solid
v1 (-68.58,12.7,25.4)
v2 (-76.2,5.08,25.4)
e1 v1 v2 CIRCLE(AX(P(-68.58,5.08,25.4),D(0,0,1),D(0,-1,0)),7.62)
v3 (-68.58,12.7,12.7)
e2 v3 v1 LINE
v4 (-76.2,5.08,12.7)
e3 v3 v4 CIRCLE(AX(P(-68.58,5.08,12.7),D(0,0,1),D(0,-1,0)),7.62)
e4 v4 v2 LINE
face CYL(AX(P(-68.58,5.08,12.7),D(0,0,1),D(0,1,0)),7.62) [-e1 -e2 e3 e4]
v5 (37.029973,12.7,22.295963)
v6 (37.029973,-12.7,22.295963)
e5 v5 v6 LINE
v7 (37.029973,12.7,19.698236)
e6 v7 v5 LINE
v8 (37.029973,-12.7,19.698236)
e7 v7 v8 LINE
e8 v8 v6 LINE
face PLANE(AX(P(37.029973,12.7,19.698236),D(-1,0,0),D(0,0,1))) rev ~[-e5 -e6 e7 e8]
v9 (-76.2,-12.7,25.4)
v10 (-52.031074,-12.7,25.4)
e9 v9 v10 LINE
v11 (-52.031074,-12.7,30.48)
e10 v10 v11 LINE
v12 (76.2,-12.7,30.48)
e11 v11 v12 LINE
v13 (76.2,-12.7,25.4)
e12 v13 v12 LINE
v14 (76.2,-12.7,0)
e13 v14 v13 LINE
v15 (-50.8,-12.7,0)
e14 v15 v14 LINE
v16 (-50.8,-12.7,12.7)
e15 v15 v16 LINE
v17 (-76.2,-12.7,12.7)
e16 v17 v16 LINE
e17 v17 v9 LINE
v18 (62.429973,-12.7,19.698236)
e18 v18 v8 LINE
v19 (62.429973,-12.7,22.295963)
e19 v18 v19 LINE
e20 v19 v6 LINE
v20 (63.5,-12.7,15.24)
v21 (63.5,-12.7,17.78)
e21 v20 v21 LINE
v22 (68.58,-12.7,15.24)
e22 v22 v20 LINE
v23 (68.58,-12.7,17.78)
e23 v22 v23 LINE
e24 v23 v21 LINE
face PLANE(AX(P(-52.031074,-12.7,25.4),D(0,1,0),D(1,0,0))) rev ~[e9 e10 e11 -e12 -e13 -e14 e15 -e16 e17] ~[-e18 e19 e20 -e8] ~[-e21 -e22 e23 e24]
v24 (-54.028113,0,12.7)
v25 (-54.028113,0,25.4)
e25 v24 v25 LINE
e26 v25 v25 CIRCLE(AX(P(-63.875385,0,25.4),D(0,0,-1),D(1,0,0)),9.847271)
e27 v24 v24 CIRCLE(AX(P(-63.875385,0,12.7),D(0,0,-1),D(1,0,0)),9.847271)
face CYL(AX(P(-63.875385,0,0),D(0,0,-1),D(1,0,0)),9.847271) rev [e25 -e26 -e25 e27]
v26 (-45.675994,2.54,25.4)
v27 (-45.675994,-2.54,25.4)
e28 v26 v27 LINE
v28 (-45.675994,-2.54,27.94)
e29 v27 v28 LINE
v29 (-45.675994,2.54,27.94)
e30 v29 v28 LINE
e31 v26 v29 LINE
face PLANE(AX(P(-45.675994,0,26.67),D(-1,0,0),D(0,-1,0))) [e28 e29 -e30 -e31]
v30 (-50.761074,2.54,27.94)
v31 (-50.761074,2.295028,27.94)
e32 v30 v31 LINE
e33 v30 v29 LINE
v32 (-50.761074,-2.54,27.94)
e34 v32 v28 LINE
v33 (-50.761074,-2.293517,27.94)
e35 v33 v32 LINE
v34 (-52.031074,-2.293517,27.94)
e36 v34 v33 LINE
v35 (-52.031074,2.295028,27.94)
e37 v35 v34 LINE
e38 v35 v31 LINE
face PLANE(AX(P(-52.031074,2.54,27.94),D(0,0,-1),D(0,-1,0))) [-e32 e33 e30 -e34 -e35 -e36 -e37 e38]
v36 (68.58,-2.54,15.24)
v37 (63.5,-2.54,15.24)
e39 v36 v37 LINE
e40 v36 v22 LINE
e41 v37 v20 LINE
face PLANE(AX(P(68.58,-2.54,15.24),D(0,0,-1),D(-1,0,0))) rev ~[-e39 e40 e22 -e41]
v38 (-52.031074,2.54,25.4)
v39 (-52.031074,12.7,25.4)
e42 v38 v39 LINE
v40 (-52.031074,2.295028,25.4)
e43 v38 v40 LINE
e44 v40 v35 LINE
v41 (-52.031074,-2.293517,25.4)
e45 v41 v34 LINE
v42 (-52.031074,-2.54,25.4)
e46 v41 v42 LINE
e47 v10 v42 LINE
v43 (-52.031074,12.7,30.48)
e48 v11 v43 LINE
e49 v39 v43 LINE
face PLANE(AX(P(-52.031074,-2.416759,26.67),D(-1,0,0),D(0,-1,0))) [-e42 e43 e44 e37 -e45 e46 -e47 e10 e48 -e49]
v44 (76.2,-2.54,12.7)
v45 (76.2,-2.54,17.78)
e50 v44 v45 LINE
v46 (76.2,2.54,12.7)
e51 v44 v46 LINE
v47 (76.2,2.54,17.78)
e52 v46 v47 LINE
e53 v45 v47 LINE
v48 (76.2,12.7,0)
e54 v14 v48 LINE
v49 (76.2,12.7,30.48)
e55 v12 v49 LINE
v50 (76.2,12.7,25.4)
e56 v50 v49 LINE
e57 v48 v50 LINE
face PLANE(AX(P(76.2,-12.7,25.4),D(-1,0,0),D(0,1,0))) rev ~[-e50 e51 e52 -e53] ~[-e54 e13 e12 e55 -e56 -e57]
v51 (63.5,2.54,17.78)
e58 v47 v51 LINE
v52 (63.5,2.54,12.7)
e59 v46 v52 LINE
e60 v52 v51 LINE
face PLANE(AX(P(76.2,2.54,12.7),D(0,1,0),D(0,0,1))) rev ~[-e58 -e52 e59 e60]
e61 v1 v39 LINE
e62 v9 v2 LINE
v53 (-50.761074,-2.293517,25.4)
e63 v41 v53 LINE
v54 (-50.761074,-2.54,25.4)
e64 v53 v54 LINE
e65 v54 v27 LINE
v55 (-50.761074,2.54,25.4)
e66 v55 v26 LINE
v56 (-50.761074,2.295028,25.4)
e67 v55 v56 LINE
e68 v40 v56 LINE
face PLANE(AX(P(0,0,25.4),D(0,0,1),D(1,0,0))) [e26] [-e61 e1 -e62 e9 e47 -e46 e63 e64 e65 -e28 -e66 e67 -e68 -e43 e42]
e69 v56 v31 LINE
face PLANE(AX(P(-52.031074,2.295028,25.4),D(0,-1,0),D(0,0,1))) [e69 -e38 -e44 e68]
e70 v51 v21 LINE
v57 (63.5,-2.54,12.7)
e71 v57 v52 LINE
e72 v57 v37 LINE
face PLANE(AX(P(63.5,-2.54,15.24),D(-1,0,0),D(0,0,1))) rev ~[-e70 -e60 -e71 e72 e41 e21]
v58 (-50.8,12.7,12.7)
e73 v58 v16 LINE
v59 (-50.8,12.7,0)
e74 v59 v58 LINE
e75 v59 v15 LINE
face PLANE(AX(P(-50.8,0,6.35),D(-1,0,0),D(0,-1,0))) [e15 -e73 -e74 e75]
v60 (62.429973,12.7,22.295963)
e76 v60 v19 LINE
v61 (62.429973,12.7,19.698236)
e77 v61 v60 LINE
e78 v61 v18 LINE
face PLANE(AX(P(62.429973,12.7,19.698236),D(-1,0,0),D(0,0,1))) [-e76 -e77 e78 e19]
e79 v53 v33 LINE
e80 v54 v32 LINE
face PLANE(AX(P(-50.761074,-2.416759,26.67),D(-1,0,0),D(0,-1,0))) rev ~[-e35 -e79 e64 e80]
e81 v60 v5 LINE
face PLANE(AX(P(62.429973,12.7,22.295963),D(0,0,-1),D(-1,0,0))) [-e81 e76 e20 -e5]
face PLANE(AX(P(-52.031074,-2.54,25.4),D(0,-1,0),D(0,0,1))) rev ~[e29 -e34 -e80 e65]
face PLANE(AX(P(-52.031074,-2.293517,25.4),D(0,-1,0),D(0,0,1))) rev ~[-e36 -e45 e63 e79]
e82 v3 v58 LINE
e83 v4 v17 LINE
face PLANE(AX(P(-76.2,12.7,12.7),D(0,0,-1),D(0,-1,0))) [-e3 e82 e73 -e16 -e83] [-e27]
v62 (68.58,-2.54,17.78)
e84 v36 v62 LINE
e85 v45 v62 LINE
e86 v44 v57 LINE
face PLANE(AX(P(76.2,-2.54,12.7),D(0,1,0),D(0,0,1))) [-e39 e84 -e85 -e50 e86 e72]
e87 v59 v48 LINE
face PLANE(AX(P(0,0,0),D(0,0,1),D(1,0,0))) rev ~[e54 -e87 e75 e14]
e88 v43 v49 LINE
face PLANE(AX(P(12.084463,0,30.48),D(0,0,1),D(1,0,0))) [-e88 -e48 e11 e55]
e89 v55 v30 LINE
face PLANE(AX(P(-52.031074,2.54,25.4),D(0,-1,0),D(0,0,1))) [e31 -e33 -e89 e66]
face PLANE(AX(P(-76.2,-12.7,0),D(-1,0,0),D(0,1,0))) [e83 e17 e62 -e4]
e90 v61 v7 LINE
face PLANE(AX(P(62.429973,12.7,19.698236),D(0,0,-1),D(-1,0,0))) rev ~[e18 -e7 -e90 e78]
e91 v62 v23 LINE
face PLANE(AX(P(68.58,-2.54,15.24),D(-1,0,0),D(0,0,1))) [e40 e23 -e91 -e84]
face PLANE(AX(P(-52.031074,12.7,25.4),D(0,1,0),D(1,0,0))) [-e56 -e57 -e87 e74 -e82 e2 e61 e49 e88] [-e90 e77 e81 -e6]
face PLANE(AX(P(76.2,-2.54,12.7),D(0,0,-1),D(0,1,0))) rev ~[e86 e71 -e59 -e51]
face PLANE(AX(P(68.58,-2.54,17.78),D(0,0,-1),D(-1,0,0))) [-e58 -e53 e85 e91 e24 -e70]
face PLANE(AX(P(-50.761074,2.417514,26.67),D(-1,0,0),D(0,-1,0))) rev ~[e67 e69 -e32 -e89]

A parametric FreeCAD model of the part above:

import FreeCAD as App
import Part
import Sketcher
Q = App.Units.Quantity


def edges_at(feature, points):
    """Names of the edges that pass closest to the given points."""
    edges = feature.Shape.Edges
    near = lambda p: min(range(len(edges)), key=lambda i: edges[i].distToShape(Part.Vertex(*p))[0])
    return sorted({f"Edge{near(p) + 1}" for p in points})

doc = App.newDocument("Part")
body = doc.addObject("PartDesign::Body", "Body")

sketch1 = doc.addObject("Sketcher::SketchObject", "Sketch")
body.addObject(sketch1)
sketch1.AttachmentSupport = (doc.XY_Plane, [""])
sketch1.MapMode = "FlatFace"
sketch1.addGeometry(Part.LineSegment(App.Vector(-76, 13, 0), App.Vector(-76, -13, 0)), False)
sketch1.addGeometry(Part.LineSegment(App.Vector(-76, -13, 0), App.Vector(76, -13, 0)), False)
sketch1.addGeometry(Part.LineSegment(App.Vector(76, -13, 0), App.Vector(76, 13, 0)), False)
sketch1.addGeometry(Part.LineSegment(App.Vector(76, 13, 0), App.Vector(-76, 13, 0)), False)
sketch1.addConstraint(Sketcher.Constraint("Coincident", 0, 2, 1, 1))
sketch1.addConstraint(Sketcher.Constraint("Coincident", 1, 2, 2, 1))
sketch1.addConstraint(Sketcher.Constraint("Coincident", 2, 2, 3, 1))
sketch1.addConstraint(Sketcher.Constraint("Coincident", 3, 2, 0, 1))
sketch1.addConstraint(Sketcher.Constraint("Vertical", 0))
sketch1.addConstraint(Sketcher.Constraint("Horizontal", 1))
sketch1.addConstraint(Sketcher.Constraint("Vertical", 2))
sketch1.addConstraint(Sketcher.Constraint("Horizontal", 3))
sketch1.addConstraint(Sketcher.Constraint("Symmetric", 0, 2, 2, 2, -1, 1))
sketch1.addConstraint(Sketcher.Constraint("DistanceX", 1, 1, 1, 2, Q("6 in")))
sketch1.addConstraint(Sketcher.Constraint("DistanceY", 0, 2, 0, 1, Q("1 in")))
pad1 = doc.addObject("PartDesign::Pad", "Pad")
body.addObject(pad1)
pad1.Profile = sketch1
pad1.Length = Q("1 in")

sketch2 = doc.addObject("Sketcher::SketchObject", "Sketch001")
body.addObject(sketch2)
sketch2.AttachmentSupport = (doc.XY_Plane, [""])
sketch2.MapMode = "FlatFace"
sketch2.addGeometry(Part.Circle(App.Vector(-64, 0, 0), App.Vector(0, 0, 1), 10), False)
sketch2.addConstraint(Sketcher.Constraint("PointOnObject", 0, 3, -1))
sketch2.addConstraint(Sketcher.Constraint("Diameter", 0, Q("19.694543 mm")))
sketch2.addConstraint(Sketcher.Constraint("DistanceX", 0, 3, -1, 1, Q("63.875385 mm")))
pocket1 = doc.addObject("PartDesign::Pocket", "Pocket")
body.addObject(pocket1)
pocket1.Profile = sketch2
pocket1.Type = "ThroughAll"
pocket1.Reversed = True

sketch3 = doc.addObject("Sketcher::SketchObject", "Sketch002")
body.addObject(sketch3)
sketch3.AttachmentSupport = (doc.YZ_Plane, [""])
sketch3.MapMode = "FlatFace"
sketch3.AttachmentOffset = App.Placement(App.Vector(0, 0, -3 * 25.4), App.Rotation())
sketch3.addGeometry(Part.LineSegment(App.Vector(13, 13, 0), App.Vector(13, 0, 0)), False)
sketch3.addGeometry(Part.LineSegment(App.Vector(13, 0, 0), App.Vector(-13, 0, 0)), False)
sketch3.addGeometry(Part.LineSegment(App.Vector(-13, 0, 0), App.Vector(-13, 13, 0)), False)
sketch3.addGeometry(Part.LineSegment(App.Vector(-13, 13, 0), App.Vector(13, 13, 0)), False)
sketch3.addConstraint(Sketcher.Constraint("Coincident", 0, 2, 1, 1))
sketch3.addConstraint(Sketcher.Constraint("Coincident", 1, 2, 2, 1))
sketch3.addConstraint(Sketcher.Constraint("Coincident", 2, 2, 3, 1))
sketch3.addConstraint(Sketcher.Constraint("Coincident", 3, 2, 0, 1))
sketch3.addConstraint(Sketcher.Constraint("Vertical", 0))
sketch3.addConstraint(Sketcher.Constraint("Horizontal", 1))
sketch3.addConstraint(Sketcher.Constraint("Vertical", 2))
sketch3.addConstraint(Sketcher.Constraint("Horizontal", 3))
sketch3.addConstraint(Sketcher.Constraint("Symmetric", 0, 2, 1, 2, -1, 1))
sketch3.addConstraint(Sketcher.Constraint("DistanceX", 1, 2, 1, 1, Q("1 in")))
sketch3.addConstraint(Sketcher.Constraint("DistanceY", 0, 2, 0, 1, Q("0.5 in")))
pocket2 = doc.addObject("PartDesign::Pocket", "Pocket001")
body.addObject(pocket2)
pocket2.Profile = sketch3
pocket2.Length = Q("1 in")
pocket2.Reversed = True

sketch4 = doc.addObject("Sketcher::SketchObject", "Sketch003")
body.addObject(sketch4)
sketch4.AttachmentSupport = (doc.XZ_Plane, [""])
sketch4.MapMode = "FlatFace"
sketch4.AttachmentOffset = App.Placement(App.Vector(0, 0, -0.5 * 25.4), App.Rotation())
sketch4.addGeometry(Part.LineSegment(App.Vector(62.4, 22.3, 0), App.Vector(62.4, 19.7, 0)), False)
sketch4.addGeometry(Part.LineSegment(App.Vector(62.4, 19.7, 0), App.Vector(37, 19.7, 0)), False)
sketch4.addGeometry(Part.LineSegment(App.Vector(37, 19.7, 0), App.Vector(37, 22.3, 0)), False)
sketch4.addGeometry(Part.LineSegment(App.Vector(37, 22.3, 0), App.Vector(62.4, 22.3, 0)), False)
sketch4.addConstraint(Sketcher.Constraint("Coincident", 0, 2, 1, 1))
sketch4.addConstraint(Sketcher.Constraint("Coincident", 1, 2, 2, 1))
sketch4.addConstraint(Sketcher.Constraint("Coincident", 2, 2, 3, 1))
sketch4.addConstraint(Sketcher.Constraint("Coincident", 3, 2, 0, 1))
sketch4.addConstraint(Sketcher.Constraint("Vertical", 0))
sketch4.addConstraint(Sketcher.Constraint("Horizontal", 1))
sketch4.addConstraint(Sketcher.Constraint("Vertical", 2))
sketch4.addConstraint(Sketcher.Constraint("Horizontal", 3))
sketch4.addConstraint(Sketcher.Constraint("DistanceX", 1, 2, 1, 1, Q("1 in")))
sketch4.addConstraint(Sketcher.Constraint("DistanceY", 0, 2, 0, 1, Q("2.597727 mm")))
sketch4.addConstraint(Sketcher.Constraint("DistanceX", -1, 1, 0, 2, Q("62.429973 mm")))
sketch4.addConstraint(Sketcher.Constraint("DistanceY", -1, 1, 0, 2, Q("19.698236 mm")))
pocket3 = doc.addObject("PartDesign::Pocket", "Pocket002")
body.addObject(pocket3)
pocket3.Profile = sketch4
pocket3.Length = Q("2.09 in")
pocket3.Reversed = True

sketch5 = doc.addObject("Sketcher::SketchObject", "Sketch004")
body.addObject(sketch5)
sketch5.AttachmentSupport = (doc.XY_Plane, [""])
sketch5.MapMode = "FlatFace"
sketch5.AttachmentOffset = App.Placement(App.Vector(0, 0, 1 * 25.4), App.Rotation())
sketch5.addGeometry(Part.LineSegment(App.Vector(-52, 13, 0), App.Vector(-52, -13, 0)), False)
sketch5.addGeometry(Part.LineSegment(App.Vector(-52, -13, 0), App.Vector(76, -13, 0)), False)
sketch5.addGeometry(Part.LineSegment(App.Vector(76, -13, 0), App.Vector(76, 13, 0)), False)
sketch5.addGeometry(Part.LineSegment(App.Vector(76, 13, 0), App.Vector(-52, 13, 0)), False)
sketch5.addConstraint(Sketcher.Constraint("Coincident", 0, 2, 1, 1))
sketch5.addConstraint(Sketcher.Constraint("Coincident", 1, 2, 2, 1))
sketch5.addConstraint(Sketcher.Constraint("Coincident", 2, 2, 3, 1))
sketch5.addConstraint(Sketcher.Constraint("Coincident", 3, 2, 0, 1))
sketch5.addConstraint(Sketcher.Constraint("Vertical", 0))
sketch5.addConstraint(Sketcher.Constraint("Horizontal", 1))
sketch5.addConstraint(Sketcher.Constraint("Vertical", 2))
sketch5.addConstraint(Sketcher.Constraint("Horizontal", 3))
sketch5.addConstraint(Sketcher.Constraint("DistanceY", 0, 2, 0, 1, Q("1 in")))
sketch5.addConstraint(Sketcher.Constraint("DistanceX", -1, 1, 1, 2, Q("3 in")))
sketch5.addConstraint(Sketcher.Constraint("DistanceY", 0, 2, -1, 1, Q("0.5 in")))
sketch5.addConstraint(Sketcher.Constraint("DistanceX", 1, 1, 1, 2, Q("128.231074 mm")))
pad2 = doc.addObject("PartDesign::Pad", "Pad001")
body.addObject(pad2)
pad2.Profile = sketch5
pad2.Length = Q("0.2 in")
doc.recompute()

fillet = doc.addObject("PartDesign::Fillet", "Fillet")
body.addObject(fillet)
fillet.Base = (pad2, edges_at(pad2, [(-76.2, 12.7, 19.05)]))
fillet.Radius = Q("0.3 in")

sketch6 = doc.addObject("Sketcher::SketchObject", "Sketch005")
body.addObject(sketch6)
sketch6.AttachmentSupport = (doc.YZ_Plane, [""])
sketch6.MapMode = "FlatFace"
sketch6.AttachmentOffset = App.Placement(App.Vector(0, 0, -52.031074), App.Rotation())
sketch6.addGeometry(Part.LineSegment(App.Vector(2.5, 27.9, 0), App.Vector(2.5, 25.4, 0)), False)
sketch6.addGeometry(Part.LineSegment(App.Vector(2.5, 25.4, 0), App.Vector(-2.5, 25.4, 0)), False)
sketch6.addGeometry(Part.LineSegment(App.Vector(-2.5, 25.4, 0), App.Vector(-2.5, 27.9, 0)), False)
sketch6.addGeometry(Part.LineSegment(App.Vector(-2.5, 27.9, 0), App.Vector(2.5, 27.9, 0)), False)
sketch6.addConstraint(Sketcher.Constraint("Coincident", 0, 2, 1, 1))
sketch6.addConstraint(Sketcher.Constraint("Coincident", 1, 2, 2, 1))
sketch6.addConstraint(Sketcher.Constraint("Coincident", 2, 2, 3, 1))
sketch6.addConstraint(Sketcher.Constraint("Coincident", 3, 2, 0, 1))
sketch6.addConstraint(Sketcher.Constraint("Vertical", 0))
sketch6.addConstraint(Sketcher.Constraint("Horizontal", 1))
sketch6.addConstraint(Sketcher.Constraint("Vertical", 2))
sketch6.addConstraint(Sketcher.Constraint("Horizontal", 3))
sketch6.addConstraint(Sketcher.Constraint("DistanceX", 1, 2, 1, 1, Q("0.2 in")))
sketch6.addConstraint(Sketcher.Constraint("DistanceY", 0, 2, 0, 1, Q("0.1 in")))
sketch6.addConstraint(Sketcher.Constraint("DistanceY", -1, 1, 0, 2, Q("1 in")))
sketch6.addConstraint(Sketcher.Constraint("DistanceX", -1, 1, 0, 2, Q("0.1 in")))
pocket4 = doc.addObject("PartDesign::Pocket", "Pocket003")
body.addObject(pocket4)
pocket4.Profile = sketch6
pocket4.Length = Q("0.2502 in")
pocket4.Reversed = True

sketch7 = doc.addObject("Sketcher::SketchObject", "Sketch006")
body.addObject(sketch7)
sketch7.AttachmentSupport = (doc.YZ_Plane, [""])
sketch7.MapMode = "FlatFace"
sketch7.AttachmentOffset = App.Placement(App.Vector(0, 0, -52.031074), App.Rotation())
sketch7.addGeometry(Part.LineSegment(App.Vector(2.54, 27.94, 0), App.Vector(2.54, 25.4, 0)), False)
sketch7.addGeometry(Part.LineSegment(App.Vector(2.54, 25.4, 0), App.Vector(2.3, 25.4, 0)), False)
sketch7.addGeometry(Part.LineSegment(App.Vector(2.3, 25.4, 0), App.Vector(2.3, 27.94, 0)), False)
sketch7.addGeometry(Part.LineSegment(App.Vector(2.3, 27.94, 0), App.Vector(2.54, 27.94, 0)), False)
sketch7.addConstraint(Sketcher.Constraint("Coincident", 0, 2, 1, 1))
sketch7.addConstraint(Sketcher.Constraint("Coincident", 1, 2, 2, 1))
sketch7.addConstraint(Sketcher.Constraint("Coincident", 2, 2, 3, 1))
sketch7.addConstraint(Sketcher.Constraint("Coincident", 3, 2, 0, 1))
sketch7.addConstraint(Sketcher.Constraint("Vertical", 0))
sketch7.addConstraint(Sketcher.Constraint("Horizontal", 1))
sketch7.addConstraint(Sketcher.Constraint("Vertical", 2))
sketch7.addConstraint(Sketcher.Constraint("Horizontal", 3))
sketch7.addConstraint(Sketcher.Constraint("DistanceY", 0, 2, 0, 1, Q("0.1 in")))
sketch7.addConstraint(Sketcher.Constraint("DistanceY", -1, 1, 0, 2, Q("1 in")))
sketch7.addConstraint(Sketcher.Constraint("DistanceX", -1, 1, 0, 2, Q("0.1 in")))
sketch7.addConstraint(Sketcher.Constraint("DistanceX", 1, 2, 1, 1, Q("0.244972 mm")))
pad3 = doc.addObject("PartDesign::Pad", "Pad002")
body.addObject(pad3)
pad3.Profile = sketch7
pad3.Length = Q("0.05 in")

sketch8 = doc.addObject("Sketcher::SketchObject", "Sketch007")
body.addObject(sketch8)
sketch8.AttachmentSupport = (doc.YZ_Plane, [""])
sketch8.MapMode = "FlatFace"
sketch8.AttachmentOffset = App.Placement(App.Vector(0, 0, -52.031074), App.Rotation())
sketch8.addGeometry(Part.LineSegment(App.Vector(-2.29, 27.94, 0), App.Vector(-2.29, 25.4, 0)), False)
sketch8.addGeometry(Part.LineSegment(App.Vector(-2.29, 25.4, 0), App.Vector(-2.54, 25.4, 0)), False)
sketch8.addGeometry(Part.LineSegment(App.Vector(-2.54, 25.4, 0), App.Vector(-2.54, 27.94, 0)), False)
sketch8.addGeometry(Part.LineSegment(App.Vector(-2.54, 27.94, 0), App.Vector(-2.29, 27.94, 0)), False)
sketch8.addConstraint(Sketcher.Constraint("Coincident", 0, 2, 1, 1))
sketch8.addConstraint(Sketcher.Constraint("Coincident", 1, 2, 2, 1))
sketch8.addConstraint(Sketcher.Constraint("Coincident", 2, 2, 3, 1))
sketch8.addConstraint(Sketcher.Constraint("Coincident", 3, 2, 0, 1))
sketch8.addConstraint(Sketcher.Constraint("Vertical", 0))
sketch8.addConstraint(Sketcher.Constraint("Horizontal", 1))
sketch8.addConstraint(Sketcher.Constraint("Vertical", 2))
sketch8.addConstraint(Sketcher.Constraint("Horizontal", 3))
sketch8.addConstraint(Sketcher.Constraint("DistanceY", 0, 2, 0, 1, Q("0.1 in")))
sketch8.addConstraint(Sketcher.Constraint("DistanceY", -1, 1, 0, 2, Q("1 in")))
sketch8.addConstraint(Sketcher.Constraint("DistanceX", 1, 2, -1, 1, Q("0.1 in")))
sketch8.addConstraint(Sketcher.Constraint("DistanceX", 1, 2, 1, 1, Q("0.246483 mm")))
pad4 = doc.addObject("PartDesign::Pad", "Pad003")
body.addObject(pad4)
pad4.Profile = sketch8
pad4.Length = Q("0.05 in")

sketch9 = doc.addObject("Sketcher::SketchObject", "Sketch008")
body.addObject(sketch9)
sketch9.AttachmentSupport = (doc.YZ_Plane, [""])
sketch9.MapMode = "FlatFace"
sketch9.AttachmentOffset = App.Placement(App.Vector(0, 0, 3 * 25.4), App.Rotation())
sketch9.addGeometry(Part.LineSegment(App.Vector(-3, 18, 0), App.Vector(-3, 13, 0)), False)
sketch9.addGeometry(Part.LineSegment(App.Vector(-3, 13, 0), App.Vector(3, 13, 0)), False)
sketch9.addGeometry(Part.LineSegment(App.Vector(3, 13, 0), App.Vector(3, 18, 0)), False)
sketch9.addGeometry(Part.LineSegment(App.Vector(3, 18, 0), App.Vector(-3, 18, 0)), False)
sketch9.addConstraint(Sketcher.Constraint("Coincident", 0, 2, 1, 1))
sketch9.addConstraint(Sketcher.Constraint("Coincident", 1, 2, 2, 1))
sketch9.addConstraint(Sketcher.Constraint("Coincident", 2, 2, 3, 1))
sketch9.addConstraint(Sketcher.Constraint("Coincident", 3, 2, 0, 1))
sketch9.addConstraint(Sketcher.Constraint("Vertical", 0))
sketch9.addConstraint(Sketcher.Constraint("Horizontal", 1))
sketch9.addConstraint(Sketcher.Constraint("Vertical", 2))
sketch9.addConstraint(Sketcher.Constraint("Horizontal", 3))
sketch9.addConstraint(Sketcher.Constraint("Equal", 3, 0))
sketch9.addConstraint(Sketcher.Constraint("DistanceX", 1, 1, 1, 2, Q("0.2 in")))
sketch9.addConstraint(Sketcher.Constraint("DistanceX", 0, 2, -1, 1, Q("0.1 in")))
sketch9.addConstraint(Sketcher.Constraint("DistanceY", -1, 1, 0, 2, Q("0.5 in")))
pocket5 = doc.addObject("PartDesign::Pocket", "Pocket004")
body.addObject(pocket5)
pocket5.Profile = sketch9
pocket5.Length = Q("0.5 in")

sketch10 = doc.addObject("Sketcher::SketchObject", "Sketch009")
body.addObject(sketch10)
sketch10.AttachmentSupport = (doc.XZ_Plane, [""])
sketch10.MapMode = "FlatFace"
sketch10.AttachmentOffset = App.Placement(App.Vector(0, 0, 0.1 * 25.4), App.Rotation())
sketch10.addGeometry(Part.LineSegment(App.Vector(68.6, 17.8, 0), App.Vector(68.6, 15.2, 0)), False)
sketch10.addGeometry(Part.LineSegment(App.Vector(68.6, 15.2, 0), App.Vector(63.5, 15.2, 0)), False)
sketch10.addGeometry(Part.LineSegment(App.Vector(63.5, 15.2, 0), App.Vector(63.5, 17.8, 0)), False)
sketch10.addGeometry(Part.LineSegment(App.Vector(63.5, 17.8, 0), App.Vector(68.6, 17.8, 0)), False)
sketch10.addConstraint(Sketcher.Constraint("Coincident", 0, 2, 1, 1))
sketch10.addConstraint(Sketcher.Constraint("Coincident", 1, 2, 2, 1))
sketch10.addConstraint(Sketcher.Constraint("Coincident", 2, 2, 3, 1))
sketch10.addConstraint(Sketcher.Constraint("Coincident", 3, 2, 0, 1))
sketch10.addConstraint(Sketcher.Constraint("Vertical", 0))
sketch10.addConstraint(Sketcher.Constraint("Horizontal", 1))
sketch10.addConstraint(Sketcher.Constraint("Vertical", 2))
sketch10.addConstraint(Sketcher.Constraint("Horizontal", 3))
sketch10.addConstraint(Sketcher.Constraint("DistanceX", 1, 2, 1, 1, Q("0.2 in")))
sketch10.addConstraint(Sketcher.Constraint("DistanceY", 0, 2, 0, 1, Q("0.1 in")))
sketch10.addConstraint(Sketcher.Constraint("DistanceX", -1, 1, 0, 2, Q("2.7 in")))
sketch10.addConstraint(Sketcher.Constraint("DistanceY", -1, 1, 0, 2, Q("0.6 in")))
pocket6 = doc.addObject("PartDesign::Pocket", "Pocket005")
body.addObject(pocket6)
pocket6.Profile = sketch10
pocket6.Length = Q("1 in")
pocket6.Reversed = True

doc.recompute()
